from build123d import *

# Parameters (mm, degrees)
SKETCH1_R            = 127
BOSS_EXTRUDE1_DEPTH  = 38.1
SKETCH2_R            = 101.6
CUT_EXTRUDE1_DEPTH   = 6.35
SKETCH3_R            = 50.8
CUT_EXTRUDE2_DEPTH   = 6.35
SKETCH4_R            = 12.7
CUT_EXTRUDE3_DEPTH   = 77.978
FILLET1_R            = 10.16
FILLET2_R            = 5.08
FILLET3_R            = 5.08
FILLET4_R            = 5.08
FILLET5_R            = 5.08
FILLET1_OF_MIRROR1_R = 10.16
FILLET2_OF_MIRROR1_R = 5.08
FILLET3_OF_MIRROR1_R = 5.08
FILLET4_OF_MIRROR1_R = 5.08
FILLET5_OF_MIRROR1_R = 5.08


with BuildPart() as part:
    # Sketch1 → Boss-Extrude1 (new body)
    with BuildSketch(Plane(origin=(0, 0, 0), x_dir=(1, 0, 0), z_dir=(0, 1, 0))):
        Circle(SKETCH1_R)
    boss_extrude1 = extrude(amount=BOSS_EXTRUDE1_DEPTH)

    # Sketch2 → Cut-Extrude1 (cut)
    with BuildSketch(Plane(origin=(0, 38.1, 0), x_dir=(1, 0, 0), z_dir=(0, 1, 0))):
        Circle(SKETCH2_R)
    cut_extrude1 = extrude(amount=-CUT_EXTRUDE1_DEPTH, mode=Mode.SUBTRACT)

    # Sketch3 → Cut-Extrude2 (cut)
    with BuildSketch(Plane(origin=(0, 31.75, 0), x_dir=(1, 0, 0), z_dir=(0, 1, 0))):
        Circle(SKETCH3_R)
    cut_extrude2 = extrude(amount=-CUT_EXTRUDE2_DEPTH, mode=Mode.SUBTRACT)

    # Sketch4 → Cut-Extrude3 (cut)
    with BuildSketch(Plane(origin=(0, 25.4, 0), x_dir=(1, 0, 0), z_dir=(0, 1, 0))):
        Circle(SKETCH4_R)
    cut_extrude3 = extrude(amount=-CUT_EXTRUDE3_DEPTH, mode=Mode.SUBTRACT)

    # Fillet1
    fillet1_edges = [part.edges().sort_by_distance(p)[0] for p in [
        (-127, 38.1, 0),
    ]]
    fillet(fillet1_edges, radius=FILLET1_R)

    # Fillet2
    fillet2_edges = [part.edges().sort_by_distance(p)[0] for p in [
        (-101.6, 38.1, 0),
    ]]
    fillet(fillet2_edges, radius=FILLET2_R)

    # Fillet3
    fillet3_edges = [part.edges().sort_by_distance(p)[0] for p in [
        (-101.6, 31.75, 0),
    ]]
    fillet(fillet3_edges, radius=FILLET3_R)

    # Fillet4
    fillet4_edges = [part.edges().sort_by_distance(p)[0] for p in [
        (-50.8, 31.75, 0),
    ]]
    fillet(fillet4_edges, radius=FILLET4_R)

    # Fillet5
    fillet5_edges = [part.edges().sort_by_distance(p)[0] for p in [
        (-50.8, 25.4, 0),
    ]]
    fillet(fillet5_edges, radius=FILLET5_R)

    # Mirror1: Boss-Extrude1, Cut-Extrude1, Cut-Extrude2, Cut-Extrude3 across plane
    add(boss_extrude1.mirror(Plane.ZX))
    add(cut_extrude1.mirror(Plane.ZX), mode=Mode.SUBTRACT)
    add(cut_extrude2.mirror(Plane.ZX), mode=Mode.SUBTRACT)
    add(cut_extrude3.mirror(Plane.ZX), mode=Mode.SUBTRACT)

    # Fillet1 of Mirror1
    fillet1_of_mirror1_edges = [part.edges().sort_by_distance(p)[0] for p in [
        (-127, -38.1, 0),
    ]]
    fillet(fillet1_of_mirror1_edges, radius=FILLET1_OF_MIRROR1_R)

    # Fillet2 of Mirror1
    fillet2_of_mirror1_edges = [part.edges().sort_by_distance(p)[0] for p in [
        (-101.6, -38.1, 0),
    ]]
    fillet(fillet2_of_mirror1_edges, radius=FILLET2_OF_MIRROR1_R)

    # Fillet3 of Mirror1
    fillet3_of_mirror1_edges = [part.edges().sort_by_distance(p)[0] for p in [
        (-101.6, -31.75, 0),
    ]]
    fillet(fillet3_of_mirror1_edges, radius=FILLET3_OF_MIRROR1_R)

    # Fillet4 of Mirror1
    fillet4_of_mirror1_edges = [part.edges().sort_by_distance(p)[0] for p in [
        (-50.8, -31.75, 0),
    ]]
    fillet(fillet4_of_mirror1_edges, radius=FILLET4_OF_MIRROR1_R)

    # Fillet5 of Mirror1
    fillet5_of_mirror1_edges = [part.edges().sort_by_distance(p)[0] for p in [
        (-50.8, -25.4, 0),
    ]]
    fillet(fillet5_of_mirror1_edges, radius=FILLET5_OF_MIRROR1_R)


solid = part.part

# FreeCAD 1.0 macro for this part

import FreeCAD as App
import Part
import Sketcher

V = App.Vector
Q = App.Units.Quantity


def edges_at(feature, points):
    """Names of the edges that pass closest to the given points."""
    edges = feature.Shape.Edges
    near = lambda p: min(range(len(edges)), key=lambda i: edges[i].distToShape(Part.Vertex(*p))[0])
    return sorted({f"Edge{near(p) + 1}" for p in points})

doc = App.newDocument("Part")
params = doc.addObject("Spreadsheet::Sheet", "Params")
for row, (alias, value) in enumerate([
    ("sketch1_diameter", "10 in"),
    ("pad1_length", "1.5 in"),
    ("sketch2_diameter", "8 in"),
    ("pocket1_length", "0.25 in"),
    ("sketch3_diameter", "4 in"),
    ("pocket2_length", "0.25 in"),
    ("sketch4_diameter", "1 in"),
    ("pocket3_length", "3.07 in"),
    ("fillet_radius", "0.4 in"),
    ("fillet2_radius", "0.2 in"),
    ("fillet3_radius", "0.2 in"),
    ("fillet4_radius", "0.2 in"),
    ("fillet5_radius", "0.2 in"),
    ("fillet6_radius", "0.4 in"),
    ("fillet7_radius", "0.2 in"),
    ("fillet8_radius", "0.2 in"),
    ("fillet9_radius", "0.2 in"),
    ("fillet10_radius", "0.2 in"),
], start=1):
    params.set(f"A{row}", alias)
    params.set(f"B{row}", "=" + value)
    params.setAlias(f"B{row}", alias)

body = doc.addObject("PartDesign::Body", "Body")

sketch1 = doc.addObject("Sketcher::SketchObject", "Sketch")
body.addObject(sketch1)
sketch1.AttachmentSupport = (doc.XZ_Plane, [""])
sketch1.MapMode = "FlatFace"
sketch1.addGeometry(Part.Circle(V(0, 0, 0), V(0, 0, 1), 127), False)
sketch1.addConstraint([
    Sketcher.Constraint("Coincident", 0, 3, -1, 1),
    Sketcher.Constraint("Diameter", 0, Q("10 in")),
])
sketch1.setExpression("Constraints[1]", "Params.sketch1_diameter")
pad1 = doc.addObject("PartDesign::Pad", "Pad")
body.addObject(pad1)
pad1.Profile = sketch1
pad1.setExpression("Length", "Params.pad1_length")
pad1.Reversed = True

sketch2 = doc.addObject("Sketcher::SketchObject", "Sketch001")
body.addObject(sketch2)
sketch2.AttachmentSupport = (doc.XZ_Plane, [""])
sketch2.MapMode = "FlatFace"
sketch2.AttachmentOffset = App.Placement(V(0, 0, -1.5 * 25.4), App.Rotation())
sketch2.addGeometry(Part.Circle(V(0, 0, 0), V(0, 0, 1), 102), False)
sketch2.addConstraint([
    Sketcher.Constraint("Coincident", 0, 3, -1, 1),
    Sketcher.Constraint("Diameter", 0, Q("8 in")),
])
sketch2.setExpression("Constraints[1]", "Params.sketch2_diameter")
pocket1 = doc.addObject("PartDesign::Pocket", "Pocket")
body.addObject(pocket1)
pocket1.Profile = sketch2
pocket1.setExpression("Length", "Params.pocket1_length")
pocket1.Reversed = True

sketch3 = doc.addObject("Sketcher::SketchObject", "Sketch002")
body.addObject(sketch3)
sketch3.AttachmentSupport = (doc.XZ_Plane, [""])
sketch3.MapMode = "FlatFace"
sketch3.AttachmentOffset = App.Placement(V(0, 0, -1.25 * 25.4), App.Rotation())
sketch3.addGeometry(Part.Circle(V(0, 0, 0), V(0, 0, 1), 51), False)
sketch3.addConstraint([
    Sketcher.Constraint("Coincident", 0, 3, -1, 1),
    Sketcher.Constraint("Diameter", 0, Q("4 in")),
])
sketch3.setExpression("Constraints[1]", "Params.sketch3_diameter")
pocket2 = doc.addObject("PartDesign::Pocket", "Pocket001")
body.addObject(pocket2)
pocket2.Profile = sketch3
pocket2.setExpression("Length", "Params.pocket2_length")
pocket2.Reversed = True

sketch4 = doc.addObject("Sketcher::SketchObject", "Sketch003")
body.addObject(sketch4)
sketch4.AttachmentSupport = (doc.XZ_Plane, [""])
sketch4.MapMode = "FlatFace"
sketch4.AttachmentOffset = App.Placement(V(0, 0, -1 * 25.4), App.Rotation())
sketch4.addGeometry(Part.Circle(V(0, 0, 0), V(0, 0, 1), 13), False)
sketch4.addConstraint([
    Sketcher.Constraint("Coincident", 0, 3, -1, 1),
    Sketcher.Constraint("Diameter", 0, Q("1 in")),
])
sketch4.setExpression("Constraints[1]", "Params.sketch4_diameter")
pocket3 = doc.addObject("PartDesign::Pocket", "Pocket002")
body.addObject(pocket3)
pocket3.Profile = sketch4
pocket3.setExpression("Length", "Params.pocket3_length")
pocket3.Reversed = True
doc.recompute()

fillet = doc.addObject("PartDesign::Fillet", "Fillet")
body.addObject(fillet)
fillet.Base = (pocket3, edges_at(pocket3, [(-127, 38.1, 0)]))
fillet.setExpression("Radius", "Params.fillet_radius")
doc.recompute()

fillet2 = doc.addObject("PartDesign::Fillet", "Fillet001")
body.addObject(fillet2)
fillet2.Base = (fillet, edges_at(fillet, [(-101.6, 38.1, 0)]))
fillet2.setExpression("Radius", "Params.fillet2_radius")
doc.recompute()

fillet3 = doc.addObject("PartDesign::Fillet", "Fillet002")
body.addObject(fillet3)
fillet3.Base = (fillet2, edges_at(fillet2, [(-101.6, 31.75, 0)]))
fillet3.setExpression("Radius", "Params.fillet3_radius")
doc.recompute()

fillet4 = doc.addObject("PartDesign::Fillet", "Fillet003")
body.addObject(fillet4)
fillet4.Base = (fillet3, edges_at(fillet3, [(-50.8, 31.75, 0)]))
fillet4.setExpression("Radius", "Params.fillet4_radius")
doc.recompute()

fillet5 = doc.addObject("PartDesign::Fillet", "Fillet004")
body.addObject(fillet5)
fillet5.Base = (fillet4, edges_at(fillet4, [(-50.8, 25.4, 0)]))
fillet5.setExpression("Radius", "Params.fillet5_radius")
doc.recompute()

mirrored = doc.addObject("PartDesign::Mirrored", "Mirrored")
body.addObject(mirrored)
mirrored.Originals = [pad1, pocket1, pocket2, pocket3]
mirrored.MirrorPlane = (doc.XZ_Plane, [""])
body.Tip = mirrored
doc.recompute()

fillet6 = doc.addObject("PartDesign::Fillet", "Fillet005")
body.addObject(fillet6)
fillet6.Base = (mirrored, edges_at(mirrored, [(-127, -38.1, 0)]))
fillet6.setExpression("Radius", "Params.fillet6_radius")
doc.recompute()

fillet7 = doc.addObject("PartDesign::Fillet", "Fillet006")
body.addObject(fillet7)
fillet7.Base = (fillet6, edges_at(fillet6, [(-101.6, -38.1, 0)]))
fillet7.setExpression("Radius", "Params.fillet7_radius")
doc.recompute()

fillet8 = doc.addObject("PartDesign::Fillet", "Fillet007")
body.addObject(fillet8)
fillet8.Base = (fillet7, edges_at(fillet7, [(-101.6, -31.75, 0)]))
fillet8.setExpression("Radius", "Params.fillet8_radius")
doc.recompute()

fillet9 = doc.addObject("PartDesign::Fillet", "Fillet008")
body.addObject(fillet9)
fillet9.Base = (fillet8, edges_at(fillet8, [(-50.8, -31.75, 0)]))
fillet9.setExpression("Radius", "Params.fillet9_radius")
doc.recompute()

fillet10 = doc.addObject("PartDesign::Fillet", "Fillet009")
body.addObject(fillet10)
fillet10.Base = (fillet9, edges_at(fillet9, [(-50.8, -25.4, 0)]))
fillet10.setExpression("Radius", "Params.fillet10_radius")

doc.recompute()
